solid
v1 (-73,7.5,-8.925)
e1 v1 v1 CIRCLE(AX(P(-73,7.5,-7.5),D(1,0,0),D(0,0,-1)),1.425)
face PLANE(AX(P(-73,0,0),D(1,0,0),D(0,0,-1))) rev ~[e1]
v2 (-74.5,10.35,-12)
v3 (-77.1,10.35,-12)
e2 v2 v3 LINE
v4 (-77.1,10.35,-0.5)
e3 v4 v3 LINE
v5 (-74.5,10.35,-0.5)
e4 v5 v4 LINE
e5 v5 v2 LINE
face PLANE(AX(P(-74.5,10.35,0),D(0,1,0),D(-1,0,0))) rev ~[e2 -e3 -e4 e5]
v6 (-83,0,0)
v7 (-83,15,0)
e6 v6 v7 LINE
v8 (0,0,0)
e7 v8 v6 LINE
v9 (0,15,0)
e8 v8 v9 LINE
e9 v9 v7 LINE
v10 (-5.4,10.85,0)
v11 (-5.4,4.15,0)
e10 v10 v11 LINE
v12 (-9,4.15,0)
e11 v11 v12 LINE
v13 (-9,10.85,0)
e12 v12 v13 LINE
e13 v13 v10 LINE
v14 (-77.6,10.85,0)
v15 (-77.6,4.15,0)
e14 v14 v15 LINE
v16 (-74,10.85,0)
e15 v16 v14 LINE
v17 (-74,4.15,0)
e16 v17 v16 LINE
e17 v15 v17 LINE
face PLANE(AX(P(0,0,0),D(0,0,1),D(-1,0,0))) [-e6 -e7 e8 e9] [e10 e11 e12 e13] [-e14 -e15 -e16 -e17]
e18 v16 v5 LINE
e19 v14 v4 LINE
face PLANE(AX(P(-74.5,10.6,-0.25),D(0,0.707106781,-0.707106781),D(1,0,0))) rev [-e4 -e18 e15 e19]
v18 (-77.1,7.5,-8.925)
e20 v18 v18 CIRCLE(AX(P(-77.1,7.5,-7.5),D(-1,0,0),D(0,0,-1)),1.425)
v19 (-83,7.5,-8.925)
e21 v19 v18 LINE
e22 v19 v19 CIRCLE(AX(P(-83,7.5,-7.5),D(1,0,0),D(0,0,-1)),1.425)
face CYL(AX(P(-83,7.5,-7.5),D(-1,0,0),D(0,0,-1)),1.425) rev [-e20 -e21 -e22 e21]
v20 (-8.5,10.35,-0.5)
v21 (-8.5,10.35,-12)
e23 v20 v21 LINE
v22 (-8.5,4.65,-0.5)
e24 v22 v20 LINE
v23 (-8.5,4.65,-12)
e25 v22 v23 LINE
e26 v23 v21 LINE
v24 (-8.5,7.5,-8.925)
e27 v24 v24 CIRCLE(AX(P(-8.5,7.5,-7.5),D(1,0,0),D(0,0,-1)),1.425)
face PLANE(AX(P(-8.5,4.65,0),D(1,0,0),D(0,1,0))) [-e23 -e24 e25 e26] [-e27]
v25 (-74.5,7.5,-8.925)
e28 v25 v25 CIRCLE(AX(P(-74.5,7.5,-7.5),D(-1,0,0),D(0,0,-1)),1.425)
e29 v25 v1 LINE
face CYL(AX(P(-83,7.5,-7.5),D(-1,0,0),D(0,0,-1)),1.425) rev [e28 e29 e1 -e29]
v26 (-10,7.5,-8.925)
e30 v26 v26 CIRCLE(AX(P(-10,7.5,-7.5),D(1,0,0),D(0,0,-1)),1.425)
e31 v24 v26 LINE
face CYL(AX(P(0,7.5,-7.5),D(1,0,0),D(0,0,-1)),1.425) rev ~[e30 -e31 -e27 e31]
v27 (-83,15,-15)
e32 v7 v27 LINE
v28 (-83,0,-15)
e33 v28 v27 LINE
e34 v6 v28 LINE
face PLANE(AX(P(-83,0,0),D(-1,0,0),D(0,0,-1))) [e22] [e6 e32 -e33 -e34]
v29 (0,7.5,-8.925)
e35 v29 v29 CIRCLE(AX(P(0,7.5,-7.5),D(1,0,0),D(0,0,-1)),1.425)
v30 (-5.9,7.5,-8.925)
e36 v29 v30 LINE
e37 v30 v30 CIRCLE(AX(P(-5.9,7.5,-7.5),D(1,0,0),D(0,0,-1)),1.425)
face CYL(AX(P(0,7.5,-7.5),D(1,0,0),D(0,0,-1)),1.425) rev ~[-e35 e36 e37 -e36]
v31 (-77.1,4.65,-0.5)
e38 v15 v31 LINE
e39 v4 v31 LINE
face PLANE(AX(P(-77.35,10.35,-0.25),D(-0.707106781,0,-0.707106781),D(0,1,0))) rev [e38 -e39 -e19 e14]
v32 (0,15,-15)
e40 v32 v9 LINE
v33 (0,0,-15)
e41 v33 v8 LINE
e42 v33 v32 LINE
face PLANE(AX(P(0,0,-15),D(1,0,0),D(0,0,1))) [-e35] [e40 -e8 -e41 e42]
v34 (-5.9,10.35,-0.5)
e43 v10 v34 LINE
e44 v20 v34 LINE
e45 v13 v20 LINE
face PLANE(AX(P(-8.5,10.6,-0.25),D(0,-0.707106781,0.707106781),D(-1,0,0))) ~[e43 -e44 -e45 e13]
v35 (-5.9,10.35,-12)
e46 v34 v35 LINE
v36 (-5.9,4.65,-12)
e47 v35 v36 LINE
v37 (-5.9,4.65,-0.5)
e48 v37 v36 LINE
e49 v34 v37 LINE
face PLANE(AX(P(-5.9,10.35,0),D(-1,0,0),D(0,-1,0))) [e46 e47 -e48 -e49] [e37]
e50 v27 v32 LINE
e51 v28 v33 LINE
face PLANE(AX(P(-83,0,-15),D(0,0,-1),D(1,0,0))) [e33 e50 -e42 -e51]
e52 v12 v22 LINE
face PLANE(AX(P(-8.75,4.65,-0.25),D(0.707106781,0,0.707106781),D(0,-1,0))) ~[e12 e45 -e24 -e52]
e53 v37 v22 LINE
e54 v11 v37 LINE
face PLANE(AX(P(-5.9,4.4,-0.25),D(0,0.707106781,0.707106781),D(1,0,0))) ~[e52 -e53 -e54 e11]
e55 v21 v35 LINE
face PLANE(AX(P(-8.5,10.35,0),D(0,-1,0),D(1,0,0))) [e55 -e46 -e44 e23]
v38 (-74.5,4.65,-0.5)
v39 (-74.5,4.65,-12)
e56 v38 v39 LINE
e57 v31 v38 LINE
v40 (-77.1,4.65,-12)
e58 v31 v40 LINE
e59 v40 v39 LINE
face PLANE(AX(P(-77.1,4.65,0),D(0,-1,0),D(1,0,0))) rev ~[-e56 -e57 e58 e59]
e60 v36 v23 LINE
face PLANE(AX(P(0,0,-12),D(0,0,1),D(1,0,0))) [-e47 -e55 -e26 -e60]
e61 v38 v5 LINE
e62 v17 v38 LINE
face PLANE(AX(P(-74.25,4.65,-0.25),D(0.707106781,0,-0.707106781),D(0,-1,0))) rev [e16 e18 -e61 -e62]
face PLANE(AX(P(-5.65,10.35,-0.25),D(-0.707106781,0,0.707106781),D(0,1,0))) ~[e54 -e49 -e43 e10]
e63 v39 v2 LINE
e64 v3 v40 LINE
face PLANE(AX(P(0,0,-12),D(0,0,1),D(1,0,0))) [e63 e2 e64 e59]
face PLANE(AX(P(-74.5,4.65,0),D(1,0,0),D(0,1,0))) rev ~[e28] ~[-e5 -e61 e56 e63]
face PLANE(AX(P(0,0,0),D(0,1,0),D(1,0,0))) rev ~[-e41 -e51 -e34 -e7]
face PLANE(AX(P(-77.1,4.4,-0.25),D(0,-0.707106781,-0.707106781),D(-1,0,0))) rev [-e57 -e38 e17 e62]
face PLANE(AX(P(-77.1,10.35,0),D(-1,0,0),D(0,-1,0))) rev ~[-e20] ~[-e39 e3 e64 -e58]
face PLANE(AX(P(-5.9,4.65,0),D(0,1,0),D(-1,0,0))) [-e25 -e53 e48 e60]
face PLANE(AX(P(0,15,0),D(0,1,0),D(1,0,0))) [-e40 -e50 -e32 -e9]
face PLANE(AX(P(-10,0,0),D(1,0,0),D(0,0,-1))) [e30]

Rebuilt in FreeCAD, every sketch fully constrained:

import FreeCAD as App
import Part
import Sketcher
from FreeCAD import Vector
Q = App.Units.Quantity


def edges_at(feature, points):
    """Names of the edges that pass closest to the given points."""
    edges = feature.Shape.Edges
    near = lambda p: min(range(len(edges)), key=lambda i: edges[i].distToShape(Part.Vertex(*p))[0])
    return sorted({f"Edge{near(p) + 1}" for p in points})

doc = App.newDocument("Part")
body = doc.addObject("PartDesign::Body", "Body")

# Sketch on XZ plane
sketch1 = body.newObject("Sketcher::SketchObject", "Sketch")
sketch1.AttachmentSupport = (doc.getObject("XZ_Plane"), [""])
sketch1.MapMode = "FlatFace"
sketch1.addGeometry([
    Part.LineSegment(Vector(-83, 0, 0), Vector(0, 0, 0)),
    Part.LineSegment(Vector(0, 0, 0), Vector(0, -15, 0)),
    Part.LineSegment(Vector(0, -15, 0), Vector(-83, -15, 0)),
    Part.LineSegment(Vector(-83, -15, 0), Vector(-83, 0, 0)),
], False)
sketch1.addConstraint([
    Sketcher.Constraint("Coincident", 0, 2, 1, 1),
    Sketcher.Constraint("Coincident", 1, 2, 2, 1),
    Sketcher.Constraint("Coincident", 2, 2, 3, 1),
    Sketcher.Constraint("Coincident", 3, 2, 0, 1),
    Sketcher.Constraint("Horizontal", 0),
    Sketcher.Constraint("Vertical", 1),
    Sketcher.Constraint("Horizontal", 2),
    Sketcher.Constraint("Vertical", 3),
    Sketcher.Constraint("Coincident", 0, 2, -1, 1),
    Sketcher.Constraint("DistanceX", 0, 1, 0, 2, Q("83 mm")),
    Sketcher.Constraint("DistanceY", 1, 2, 1, 1, Q("15 mm")),
])
pad1 = body.newObject("PartDesign::Pad", "Pad")
pad1.Profile = sketch1
pad1.Length = 15
pad1.Reversed = True

# Sketch on XY plane
sketch2 = body.newObject("Sketcher::SketchObject", "Sketch001")
sketch2.AttachmentSupport = (doc.getObject("XY_Plane"), [""])
sketch2.MapMode = "FlatFace"
sketch2.addGeometry([
    Part.LineSegment(Vector(-8.5, 4.7, 0), Vector(-5.9, 4.7, 0)),  # 0
    Part.LineSegment(Vector(-5.9, 4.7, 0), Vector(-5.9, 10.3, 0)),  # 1
    Part.LineSegment(Vector(-5.9, 10.3, 0), Vector(-8.5, 10.3, 0)),  # 2
    Part.LineSegment(Vector(-8.5, 10.3, 0), Vector(-8.5, 4.7, 0)),  # 3
    Part.LineSegment(Vector(-77.1, 10.3, 0), Vector(-77.1, 4.7, 0)),  # 4
    Part.LineSegment(Vector(-77.1, 4.7, 0), Vector(-74.5, 4.7, 0)),  # 5
    Part.LineSegment(Vector(-74.5, 4.7, 0), Vector(-74.5, 10.3, 0)),  # 6
    Part.LineSegment(Vector(-74.5, 10.3, 0), Vector(-77.1, 10.3, 0)),  # 7
], False)
sketch2.addConstraint([
    Sketcher.Constraint("Coincident", 0, 2, 1, 1),
    Sketcher.Constraint("Coincident", 1, 2, 2, 1),
    Sketcher.Constraint("Coincident", 2, 2, 3, 1),
    Sketcher.Constraint("Coincident", 3, 2, 0, 1),
    Sketcher.Constraint("Coincident", 4, 2, 5, 1),
    Sketcher.Constraint("Coincident", 5, 2, 6, 1),
    Sketcher.Constraint("Coincident", 6, 2, 7, 1),
    Sketcher.Constraint("Coincident", 7, 2, 4, 1),
    Sketcher.Constraint("Horizontal", 0),
    Sketcher.Constraint("Vertical", 1),
    Sketcher.Constraint("Horizontal", 2),
    Sketcher.Constraint("Vertical", 3),
    Sketcher.Constraint("Vertical", 4),
    Sketcher.Constraint("Horizontal", 5),
    Sketcher.Constraint("Vertical", 6),
    Sketcher.Constraint("Horizontal", 7),
    Sketcher.Constraint("Horizontal", 3, 2, 4, 2),
    Sketcher.Constraint("Horizontal", 2, 2, 6, 2),
    Sketcher.Constraint("Equal", 2, 5),
    Sketcher.Constraint("DistanceX", 0, 1, 0, 2, Q("2.6 mm")),
    Sketcher.Constraint("DistanceY", 1, 1, 1, 2, Q("5.7 mm")),
    Sketcher.Constraint("DistanceX", 0, 2, -1, 1, Q("5.9 mm")),
    Sketcher.Constraint("DistanceY", -1, 1, 0, 2, Q("4.65 mm")),
    Sketcher.Constraint("DistanceX", 5, 2, 3, 2, Q("66 mm")),
])
pocket1 = body.newObject("PartDesign::Pocket", "Pocket")
pocket1.Profile = sketch2
pocket1.Length = 12

# Sketch on YZ plane
sketch3 = body.newObject("Sketcher::SketchObject", "Sketch002")
sketch3.AttachmentSupport = (doc.getObject("YZ_Plane"), [""])
sketch3.MapMode = "FlatFace"
sketch3.addGeometry(Part.Circle(Vector(7.5, -7.5, 0), Vector(0, 0, 1), 1.4), False)
sketch3.addConstraint([
    Sketcher.Constraint("Diameter", 0, Q("2.85 mm")),
    Sketcher.Constraint("DistanceX", -1, 1, 0, 3, Q("7.5 mm")),
    Sketcher.Constraint("DistanceY", 0, 3, -1, 1, Q("7.5 mm")),
])
pocket2 = body.newObject("PartDesign::Pocket", "Pocket001")
pocket2.Profile = sketch3
pocket2.Length = 10

# Sketch on YZ plane
sketch4 = body.newObject("Sketcher::SketchObject", "Sketch003")
sketch4.AttachmentSupport = (doc.getObject("YZ_Plane"), [""])
sketch4.MapMode = "FlatFace"
sketch4.AttachmentOffset = App.Placement(Vector(0, 0, -83), App.Rotation())
sketch4.addGeometry(Part.Circle(Vector(7.5, -7.5, 0), Vector(0, 0, 1), 1.4), False)
sketch4.addConstraint([
    Sketcher.Constraint("Diameter", 0, Q("2.85 mm")),
    Sketcher.Constraint("DistanceX", -1, 1, 0, 3, Q("7.5 mm")),
    Sketcher.Constraint("DistanceY", 0, 3, -1, 1, Q("7.5 mm")),
])
pocket3 = body.newObject("PartDesign::Pocket", "Pocket002")
pocket3.Profile = sketch4
pocket3.Length = 10
pocket3.Reversed = True
doc.recompute()

chamfer = body.newObject("PartDesign::Chamfer", "Chamfer")
chamfer.Base = (pocket3, edges_at(pocket3, [
    (-77.1, 7.5, 0),
    (-75.8, 10.35, 0),
    (-74.5, 7.5, 0),
    (-75.8, 4.65, 0),
]))
chamfer.Size = 0.5
doc.recompute()

chamfer2 = body.newObject("PartDesign::Chamfer", "Chamfer001")
chamfer2.Base = (chamfer, edges_at(chamfer, [
    (-7.2, 10.35, 0),
    (-5.9, 7.5, 0),
    (-7.2, 4.65, 0),
    (-8.5, 7.5, 0),
]))
chamfer2.Size = 0.5

doc.recompute()
